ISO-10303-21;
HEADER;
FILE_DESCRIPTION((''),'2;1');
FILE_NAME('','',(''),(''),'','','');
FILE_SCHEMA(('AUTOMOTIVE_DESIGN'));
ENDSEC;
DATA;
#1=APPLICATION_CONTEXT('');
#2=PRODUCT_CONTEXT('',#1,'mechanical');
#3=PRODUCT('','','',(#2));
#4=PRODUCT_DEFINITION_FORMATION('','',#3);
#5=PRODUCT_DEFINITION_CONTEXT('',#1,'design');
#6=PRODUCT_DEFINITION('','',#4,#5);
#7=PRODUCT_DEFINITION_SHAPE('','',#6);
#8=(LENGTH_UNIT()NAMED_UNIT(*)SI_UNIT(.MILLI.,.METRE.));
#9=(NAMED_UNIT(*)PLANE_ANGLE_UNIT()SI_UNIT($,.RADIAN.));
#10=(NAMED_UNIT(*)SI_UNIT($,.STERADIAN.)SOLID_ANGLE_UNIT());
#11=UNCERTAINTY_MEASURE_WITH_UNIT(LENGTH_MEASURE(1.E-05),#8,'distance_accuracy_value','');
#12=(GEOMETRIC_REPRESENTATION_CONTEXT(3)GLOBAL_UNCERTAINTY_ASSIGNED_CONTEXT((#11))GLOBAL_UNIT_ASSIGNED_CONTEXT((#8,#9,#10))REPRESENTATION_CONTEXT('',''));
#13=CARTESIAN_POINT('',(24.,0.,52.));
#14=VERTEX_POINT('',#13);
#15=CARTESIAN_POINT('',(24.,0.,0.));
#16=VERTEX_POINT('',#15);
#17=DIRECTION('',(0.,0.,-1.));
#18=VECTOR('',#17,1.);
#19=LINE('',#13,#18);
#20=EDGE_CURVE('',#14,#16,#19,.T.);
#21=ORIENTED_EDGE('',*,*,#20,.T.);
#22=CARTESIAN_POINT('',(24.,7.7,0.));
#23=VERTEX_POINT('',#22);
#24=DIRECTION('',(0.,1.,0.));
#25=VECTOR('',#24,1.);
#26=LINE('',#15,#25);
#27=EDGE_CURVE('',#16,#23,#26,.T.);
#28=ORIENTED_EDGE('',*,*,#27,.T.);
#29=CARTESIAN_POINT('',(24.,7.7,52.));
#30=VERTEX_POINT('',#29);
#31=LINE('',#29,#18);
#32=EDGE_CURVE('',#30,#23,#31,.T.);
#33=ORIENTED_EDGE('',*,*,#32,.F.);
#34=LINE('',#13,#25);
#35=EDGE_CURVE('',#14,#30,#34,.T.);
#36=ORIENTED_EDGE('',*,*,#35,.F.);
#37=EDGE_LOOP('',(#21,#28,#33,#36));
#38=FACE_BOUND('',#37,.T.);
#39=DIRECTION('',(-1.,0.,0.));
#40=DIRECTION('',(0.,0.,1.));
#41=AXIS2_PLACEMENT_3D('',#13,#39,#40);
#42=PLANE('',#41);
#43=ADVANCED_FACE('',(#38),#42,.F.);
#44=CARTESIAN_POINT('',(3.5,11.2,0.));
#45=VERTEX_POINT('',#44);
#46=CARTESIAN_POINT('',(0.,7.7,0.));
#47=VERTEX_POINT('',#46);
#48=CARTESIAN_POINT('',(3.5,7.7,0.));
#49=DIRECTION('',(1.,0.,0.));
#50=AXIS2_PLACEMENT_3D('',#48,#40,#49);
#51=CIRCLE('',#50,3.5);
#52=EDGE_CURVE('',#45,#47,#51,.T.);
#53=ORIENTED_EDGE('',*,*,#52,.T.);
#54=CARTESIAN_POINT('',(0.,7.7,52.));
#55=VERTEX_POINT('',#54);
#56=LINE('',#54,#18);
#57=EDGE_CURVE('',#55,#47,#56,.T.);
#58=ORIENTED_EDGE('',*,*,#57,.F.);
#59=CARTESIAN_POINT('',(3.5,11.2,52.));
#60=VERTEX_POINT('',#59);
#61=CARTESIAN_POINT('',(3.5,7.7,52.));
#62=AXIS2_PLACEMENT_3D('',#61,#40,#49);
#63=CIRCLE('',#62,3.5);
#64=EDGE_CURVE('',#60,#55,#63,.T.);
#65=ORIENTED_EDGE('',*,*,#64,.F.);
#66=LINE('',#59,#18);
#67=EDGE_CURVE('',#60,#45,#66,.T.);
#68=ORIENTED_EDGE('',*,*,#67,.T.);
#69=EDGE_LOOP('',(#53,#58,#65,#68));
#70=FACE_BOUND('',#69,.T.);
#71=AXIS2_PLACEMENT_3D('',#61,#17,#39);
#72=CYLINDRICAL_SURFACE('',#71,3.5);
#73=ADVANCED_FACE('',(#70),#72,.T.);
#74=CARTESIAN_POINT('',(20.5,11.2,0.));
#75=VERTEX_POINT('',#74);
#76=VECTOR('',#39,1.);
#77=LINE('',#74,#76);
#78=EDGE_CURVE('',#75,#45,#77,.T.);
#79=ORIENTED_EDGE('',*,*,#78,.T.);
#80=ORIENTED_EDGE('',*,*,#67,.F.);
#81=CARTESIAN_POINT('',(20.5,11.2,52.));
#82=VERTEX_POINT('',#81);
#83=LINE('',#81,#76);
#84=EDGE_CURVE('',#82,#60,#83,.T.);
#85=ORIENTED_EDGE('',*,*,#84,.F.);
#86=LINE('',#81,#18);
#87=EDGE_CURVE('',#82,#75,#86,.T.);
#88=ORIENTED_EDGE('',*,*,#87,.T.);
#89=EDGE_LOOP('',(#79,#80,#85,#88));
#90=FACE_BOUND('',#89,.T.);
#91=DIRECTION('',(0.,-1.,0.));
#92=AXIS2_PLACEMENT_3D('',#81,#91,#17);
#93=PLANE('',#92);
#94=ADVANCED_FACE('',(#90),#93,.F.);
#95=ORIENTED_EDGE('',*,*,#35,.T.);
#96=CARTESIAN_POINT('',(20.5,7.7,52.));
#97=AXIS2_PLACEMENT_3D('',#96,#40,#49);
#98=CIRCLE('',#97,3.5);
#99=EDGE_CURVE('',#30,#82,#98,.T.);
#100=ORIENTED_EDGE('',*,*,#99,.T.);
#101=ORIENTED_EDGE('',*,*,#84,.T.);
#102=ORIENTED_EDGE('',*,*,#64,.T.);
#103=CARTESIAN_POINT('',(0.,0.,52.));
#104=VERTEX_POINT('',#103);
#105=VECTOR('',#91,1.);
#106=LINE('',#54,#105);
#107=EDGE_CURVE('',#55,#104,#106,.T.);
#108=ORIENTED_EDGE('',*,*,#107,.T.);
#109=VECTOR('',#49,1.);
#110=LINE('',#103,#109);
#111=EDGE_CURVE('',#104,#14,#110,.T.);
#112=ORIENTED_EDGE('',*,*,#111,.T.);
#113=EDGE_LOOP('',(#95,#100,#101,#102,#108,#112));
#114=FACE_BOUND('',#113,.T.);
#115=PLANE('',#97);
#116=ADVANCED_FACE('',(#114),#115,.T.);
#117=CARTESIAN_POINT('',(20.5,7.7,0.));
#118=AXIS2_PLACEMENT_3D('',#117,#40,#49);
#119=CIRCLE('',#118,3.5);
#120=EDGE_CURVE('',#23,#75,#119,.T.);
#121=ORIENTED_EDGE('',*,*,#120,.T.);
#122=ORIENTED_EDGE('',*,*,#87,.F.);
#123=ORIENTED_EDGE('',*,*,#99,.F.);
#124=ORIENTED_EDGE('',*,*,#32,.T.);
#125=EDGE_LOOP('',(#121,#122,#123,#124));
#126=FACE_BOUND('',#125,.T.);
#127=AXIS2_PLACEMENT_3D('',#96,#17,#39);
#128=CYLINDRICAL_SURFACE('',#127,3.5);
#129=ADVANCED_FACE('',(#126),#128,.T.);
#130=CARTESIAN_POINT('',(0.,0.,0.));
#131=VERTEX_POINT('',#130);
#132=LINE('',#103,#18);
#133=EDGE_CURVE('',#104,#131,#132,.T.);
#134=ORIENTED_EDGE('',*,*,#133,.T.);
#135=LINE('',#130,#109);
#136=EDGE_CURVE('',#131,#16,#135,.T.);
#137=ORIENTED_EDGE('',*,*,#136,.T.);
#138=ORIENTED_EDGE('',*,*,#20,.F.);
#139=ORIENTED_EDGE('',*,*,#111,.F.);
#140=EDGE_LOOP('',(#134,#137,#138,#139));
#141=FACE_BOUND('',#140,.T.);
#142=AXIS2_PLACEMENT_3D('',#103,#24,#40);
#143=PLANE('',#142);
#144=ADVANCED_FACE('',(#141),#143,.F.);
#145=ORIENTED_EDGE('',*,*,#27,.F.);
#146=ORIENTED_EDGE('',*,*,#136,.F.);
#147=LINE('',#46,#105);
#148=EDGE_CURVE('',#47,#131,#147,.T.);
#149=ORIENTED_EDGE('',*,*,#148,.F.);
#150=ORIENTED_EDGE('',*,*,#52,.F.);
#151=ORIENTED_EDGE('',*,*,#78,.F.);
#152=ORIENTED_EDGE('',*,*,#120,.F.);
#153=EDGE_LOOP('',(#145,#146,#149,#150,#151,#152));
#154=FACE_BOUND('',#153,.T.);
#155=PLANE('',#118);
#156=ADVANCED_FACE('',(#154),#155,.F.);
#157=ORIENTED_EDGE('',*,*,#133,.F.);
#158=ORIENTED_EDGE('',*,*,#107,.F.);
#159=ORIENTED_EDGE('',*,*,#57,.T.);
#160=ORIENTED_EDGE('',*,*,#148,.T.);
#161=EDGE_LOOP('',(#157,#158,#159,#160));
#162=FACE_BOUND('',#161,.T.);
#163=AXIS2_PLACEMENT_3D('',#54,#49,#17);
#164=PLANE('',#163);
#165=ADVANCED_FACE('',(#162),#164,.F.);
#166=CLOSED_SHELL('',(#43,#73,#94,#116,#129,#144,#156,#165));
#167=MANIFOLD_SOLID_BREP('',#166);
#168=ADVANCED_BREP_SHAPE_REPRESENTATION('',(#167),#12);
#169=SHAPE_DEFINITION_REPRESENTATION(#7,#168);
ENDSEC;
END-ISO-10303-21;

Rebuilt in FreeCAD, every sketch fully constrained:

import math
import FreeCAD as App
import Part
import Sketcher

V = App.Vector

doc = App.newDocument("Part")
body = doc.addObject("PartDesign::Body", "Body")

# Sketch on XY plane
sketch1 = doc.addObject("Sketcher::SketchObject", "Sketch")
body.addObject(sketch1)
sketch1.AttachmentSupport = (doc.XY_Plane, [""])
sketch1.MapMode = "FlatFace"
sketch1.addGeometry([
    Part.LineSegment(V(0, 0, 0), V(24, 0, 0)),  # 0
    Part.LineSegment(V(24, 0, 0), V(24, 7.7, 0)),  # 1
    Part.ArcOfCircle(Part.Circle(V(20.5, 7.7, 0), V(0, 0, 1), 3.5), math.radians(0), math.radians(90)),  # 2
    Part.LineSegment(V(20.5, 11.2, 0), V(3.5, 11.2, 0)),  # 3
    Part.ArcOfCircle(Part.Circle(V(3.5, 7.7, 0), V(0, 0, 1), 3.5), math.radians(90), math.radians(180)),  # 4
    Part.LineSegment(V(0, 7.7, 0), V(0, 0, 0)),  # 5
], False)
sketch1.addConstraint([
    Sketcher.Constraint("Coincident", 0, 2, 1, 1),
    Sketcher.Constraint("Tangent", 1, 2, 2, 1),
    Sketcher.Constraint("Tangent", 2, 2, 3, 1),
    Sketcher.Constraint("Tangent", 3, 2, 4, 1),
    Sketcher.Constraint("Tangent", 4, 2, 5, 1),
    Sketcher.Constraint("Coincident", 5, 2, 0, 1),
    Sketcher.Constraint("Horizontal", 0),
    Sketcher.Constraint("Vertical", 1),
    Sketcher.Constraint("Horizontal", 3),
    Sketcher.Constraint("Vertical", 5),
    Sketcher.Constraint("Coincident", 5, 2, -1, 1),
    Sketcher.Constraint("Equal", 2, 4),
    Sketcher.Constraint("Radius", 2, 3.5),
    Sketcher.Constraint("DistanceX", 0, 1, 0, 2, 24.0),
    Sketcher.Constraint("DistanceY", 1, 1, 1, 2, 7.7),
])
pad1 = doc.addObject("PartDesign::Pad", "Pad")
body.addObject(pad1)
pad1.Profile = sketch1
pad1.Length = 52

doc.recompute()
